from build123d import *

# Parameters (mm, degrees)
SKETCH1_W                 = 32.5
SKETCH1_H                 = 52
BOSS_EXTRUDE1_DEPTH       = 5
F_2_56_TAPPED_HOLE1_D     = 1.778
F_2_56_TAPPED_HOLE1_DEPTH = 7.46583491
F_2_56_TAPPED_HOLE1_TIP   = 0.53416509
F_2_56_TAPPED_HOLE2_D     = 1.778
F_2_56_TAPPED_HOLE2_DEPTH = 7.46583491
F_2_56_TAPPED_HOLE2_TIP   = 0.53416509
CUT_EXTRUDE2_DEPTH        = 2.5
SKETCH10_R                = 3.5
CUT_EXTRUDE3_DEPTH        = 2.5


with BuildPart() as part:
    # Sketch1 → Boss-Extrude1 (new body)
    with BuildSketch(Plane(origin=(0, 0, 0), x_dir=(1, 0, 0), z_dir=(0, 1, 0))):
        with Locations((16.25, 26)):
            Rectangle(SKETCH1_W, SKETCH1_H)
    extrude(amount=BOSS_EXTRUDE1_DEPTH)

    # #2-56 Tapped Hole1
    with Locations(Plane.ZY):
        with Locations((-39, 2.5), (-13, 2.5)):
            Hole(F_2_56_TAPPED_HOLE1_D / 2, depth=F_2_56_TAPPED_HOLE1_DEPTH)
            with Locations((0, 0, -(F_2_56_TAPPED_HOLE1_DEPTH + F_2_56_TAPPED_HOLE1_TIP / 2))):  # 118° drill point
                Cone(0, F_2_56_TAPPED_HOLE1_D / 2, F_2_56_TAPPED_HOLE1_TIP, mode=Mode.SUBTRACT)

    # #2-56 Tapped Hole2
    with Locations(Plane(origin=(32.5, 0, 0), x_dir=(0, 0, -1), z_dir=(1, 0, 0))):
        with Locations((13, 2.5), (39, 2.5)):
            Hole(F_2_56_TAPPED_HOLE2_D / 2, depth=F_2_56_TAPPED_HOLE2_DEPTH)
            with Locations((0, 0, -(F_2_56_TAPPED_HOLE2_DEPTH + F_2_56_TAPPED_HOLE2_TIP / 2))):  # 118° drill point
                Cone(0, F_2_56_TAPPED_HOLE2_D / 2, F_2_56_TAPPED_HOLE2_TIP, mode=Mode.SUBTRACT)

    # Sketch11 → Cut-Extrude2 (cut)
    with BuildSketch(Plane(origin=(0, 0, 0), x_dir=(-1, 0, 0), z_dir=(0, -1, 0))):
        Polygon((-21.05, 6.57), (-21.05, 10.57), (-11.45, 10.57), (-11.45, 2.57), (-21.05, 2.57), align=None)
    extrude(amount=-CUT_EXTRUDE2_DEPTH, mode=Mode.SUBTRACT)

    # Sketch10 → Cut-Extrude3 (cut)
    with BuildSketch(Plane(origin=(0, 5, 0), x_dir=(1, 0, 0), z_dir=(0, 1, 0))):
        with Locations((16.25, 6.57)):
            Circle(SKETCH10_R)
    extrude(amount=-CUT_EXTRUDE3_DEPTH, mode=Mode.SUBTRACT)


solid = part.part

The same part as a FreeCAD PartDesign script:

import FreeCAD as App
import Part
import Sketcher
from FreeCAD import Vector


def add_polygon(sketch, points):
    """Adds a closed chain of lines whose ends are joined by coincident constraints."""
    first, n = sketch.GeometryCount, len(points)
    for a, b in zip(points, points[1:] + points[:1]):
        sketch.addGeometry(Part.LineSegment(App.Vector(*a, 0), App.Vector(*b, 0)), False)
    for i in range(n):
        sketch.addConstraint(Sketcher.Constraint("Coincident", first + i, 2, first + (i + 1) % n, 1))

doc = App.newDocument("Part")
body = doc.addObject("PartDesign::Body", "Body")

# Sketch on XZ plane
sketch1 = body.newObject("Sketcher::SketchObject", "Sketch")
sketch1.AttachmentSupport = (doc.getObject("XZ_Plane"), [""])
sketch1.MapMode = "FlatFace"
add_polygon(sketch1, [(0, -52), (0, 0), (32, 0), (32, -52)])  # lines 0-3
sketch1.addConstraint([
    Sketcher.Constraint("Vertical", 0),
    Sketcher.Constraint("Horizontal", 1),
    Sketcher.Constraint("Vertical", 2),
    Sketcher.Constraint("Horizontal", 3),
    Sketcher.Constraint("Coincident", 0, 2, -1, 1),
    Sketcher.Constraint("DistanceY", 0, 1, 0, 2, 52.0),
    Sketcher.Constraint("DistanceX", 1, 1, 1, 2, 32.5),
])
pad1 = body.newObject("PartDesign::Pad", "Pad")
pad1.Profile = sketch1
pad1.Length = 5
pad1.Reversed = True

# Sketch on YZ plane
sketch2 = body.newObject("Sketcher::SketchObject", "Sketch001")
sketch2.AttachmentSupport = (doc.getObject("YZ_Plane"), [""])
sketch2.MapMode = "FlatFace"
sketch2.addGeometry([
    Part.Circle(Vector(2.5, -39, 0), Vector(0, 0, 1), 0.9),
    Part.Circle(Vector(2.5, -13, 0), Vector(0, 0, 1), 0.9),
], False)
sketch2.addConstraint([
    Sketcher.Constraint("Equal", 0, 1),
    Sketcher.Constraint("Vertical", 0, 3, 1, 3),
    Sketcher.Constraint("Diameter", 0, 1.778),
    Sketcher.Constraint("DistanceY", 0, 3, -1, 1, 39.0),
    Sketcher.Constraint("DistanceY", 1, 3, -1, 1, 13.0),
    Sketcher.Constraint("DistanceX", -1, 1, 0, 3, 2.5),
])
doc.recompute()
hole = body.newObject("PartDesign::Hole", "Hole")
hole.Profile = sketch2
hole.ThreadType = "None"
hole.Diameter = 1.778
hole.DepthType = "Dimension"
hole.Depth = 7.465835
hole.DrillPoint = "Angled"
hole.DrillPointAngle = 118
hole.Reversed = True

# Sketch on YZ plane
sketch3 = body.newObject("Sketcher::SketchObject", "Sketch002")
sketch3.AttachmentSupport = (doc.getObject("YZ_Plane"), [""])
sketch3.MapMode = "FlatFace"
sketch3.AttachmentOffset = App.Placement(Vector(0, 0, 32.5), App.Rotation())
sketch3.addGeometry([
    Part.Circle(Vector(2.5, -13, 0), Vector(0, 0, 1), 0.9),
    Part.Circle(Vector(2.5, -39, 0), Vector(0, 0, 1), 0.9),
], False)
sketch3.addConstraint([
    Sketcher.Constraint("Equal", 0, 1),
    Sketcher.Constraint("Vertical", 0, 3, 1, 3),
    Sketcher.Constraint("Diameter", 0, 1.778),
    Sketcher.Constraint("DistanceY", 0, 3, -1, 1, 13.0),
    Sketcher.Constraint("DistanceY", 1, 3, -1, 1, 39.0),
    Sketcher.Constraint("DistanceX", -1, 1, 0, 3, 2.5),
])
doc.recompute()
hole2 = body.newObject("PartDesign::Hole", "Hole001")
hole2.Profile = sketch3
hole2.ThreadType = "None"
hole2.Diameter = 1.778
hole2.DepthType = "Dimension"
hole2.Depth = 7.465835
hole2.DrillPoint = "Angled"
hole2.DrillPointAngle = 118

# Sketch on XZ plane
sketch4 = body.newObject("Sketcher::SketchObject", "Sketch003")
sketch4.AttachmentSupport = (doc.getObject("XZ_Plane"), [""])
sketch4.MapMode = "FlatFace"
add_polygon(sketch4, [(21, -11), (21, -3), (11, -3), (11, -11)])  # lines 0-3
sketch4.addConstraint([
    Sketcher.Constraint("Vertical", 0),
    Sketcher.Constraint("Horizontal", 1),
    Sketcher.Constraint("Vertical", 2),
    Sketcher.Constraint("Horizontal", 3),
    Sketcher.Constraint("DistanceY", 0, 1, 0, 2, 8.0),
    Sketcher.Constraint("DistanceX", 1, 2, 1, 1, 9.6),
    Sketcher.Constraint("DistanceX", -1, 1, 0, 2, 21.05),
    Sketcher.Constraint("DistanceY", 0, 2, -1, 1, 2.57),
])
pocket1 = body.newObject("PartDesign::Pocket", "Pocket")
pocket1.Profile = sketch4
pocket1.Length = 2.5

# Sketch on XZ plane
sketch5 = body.newObject("Sketcher::SketchObject", "Sketch004")
sketch5.AttachmentSupport = (doc.getObject("XZ_Plane"), [""])
sketch5.MapMode = "FlatFace"
sketch5.AttachmentOffset = App.Placement(Vector(0, 0, -5), App.Rotation())
sketch5.addGeometry(Part.Circle(Vector(16.2, -6.6, 0), Vector(0, 0, 1), 3.5), False)
sketch5.addConstraint([
    Sketcher.Constraint("Diameter", 0, 7.0),
    Sketcher.Constraint("DistanceX", -1, 1, 0, 3, 16.25),
    Sketcher.Constraint("DistanceY", 0, 3, -1, 1, 6.57),
])
pocket2 = body.newObject("PartDesign::Pocket", "Pocket001")
pocket2.Profile = sketch5
pocket2.Length = 2.5
pocket2.Reversed = True

doc.recompute()
